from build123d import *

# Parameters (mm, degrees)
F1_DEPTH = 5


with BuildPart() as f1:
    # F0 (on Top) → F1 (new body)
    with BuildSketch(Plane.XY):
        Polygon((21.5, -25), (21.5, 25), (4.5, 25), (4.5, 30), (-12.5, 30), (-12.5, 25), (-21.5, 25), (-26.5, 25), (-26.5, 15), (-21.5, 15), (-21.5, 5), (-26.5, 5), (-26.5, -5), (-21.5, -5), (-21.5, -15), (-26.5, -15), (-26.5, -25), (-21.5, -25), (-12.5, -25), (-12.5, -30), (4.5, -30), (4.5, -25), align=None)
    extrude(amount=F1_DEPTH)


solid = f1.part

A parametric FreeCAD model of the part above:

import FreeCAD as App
import Part
import Sketcher
Q = App.Units.Quantity

doc = App.newDocument("Part")
body = doc.addObject("PartDesign::Body", "Body")

sketch1 = body.newObject("Sketcher::SketchObject", "Sketch")
sketch1.AttachmentSupport = (doc.getObject("XY_Plane"), [""])
sketch1.MapMode = "FlatFace"
sketch1.addGeometry(Part.LineSegment(App.Vector(22, -25, 0), App.Vector(22, 25, 0)), False)
sketch1.addGeometry(Part.LineSegment(App.Vector(22, 25, 0), App.Vector(4, 25, 0)), False)
sketch1.addGeometry(Part.LineSegment(App.Vector(4, 25, 0), App.Vector(4, 30, 0)), False)
sketch1.addGeometry(Part.LineSegment(App.Vector(4, 30, 0), App.Vector(-12, 30, 0)), False)
sketch1.addGeometry(Part.LineSegment(App.Vector(-12, 30, 0), App.Vector(-12, 25, 0)), False)
sketch1.addGeometry(Part.LineSegment(App.Vector(-12, 25, 0), App.Vector(-26, 25, 0)), False)
sketch1.addGeometry(Part.LineSegment(App.Vector(-26, 25, 0), App.Vector(-26, 15, 0)), False)
sketch1.addGeometry(Part.LineSegment(App.Vector(-26, 15, 0), App.Vector(-22, 15, 0)), False)
sketch1.addGeometry(Part.LineSegment(App.Vector(-22, 15, 0), App.Vector(-22, 5, 0)), False)
sketch1.addGeometry(Part.LineSegment(App.Vector(-22, 5, 0), App.Vector(-26, 5, 0)), False)
sketch1.addGeometry(Part.LineSegment(App.Vector(-26, 5, 0), App.Vector(-26, -5, 0)), False)
sketch1.addGeometry(Part.LineSegment(App.Vector(-26, -5, 0), App.Vector(-22, -5, 0)), False)
sketch1.addGeometry(Part.LineSegment(App.Vector(-22, -5, 0), App.Vector(-22, -15, 0)), False)
sketch1.addGeometry(Part.LineSegment(App.Vector(-22, -15, 0), App.Vector(-26, -15, 0)), False)
sketch1.addGeometry(Part.LineSegment(App.Vector(-26, -15, 0), App.Vector(-26, -25, 0)), False)
sketch1.addGeometry(Part.LineSegment(App.Vector(-26, -25, 0), App.Vector(-12, -25, 0)), False)
sketch1.addGeometry(Part.LineSegment(App.Vector(-12, -25, 0), App.Vector(-12, -30, 0)), False)
sketch1.addGeometry(Part.LineSegment(App.Vector(-12, -30, 0), App.Vector(4, -30, 0)), False)
sketch1.addGeometry(Part.LineSegment(App.Vector(4, -30, 0), App.Vector(4, -25, 0)), False)
sketch1.addGeometry(Part.LineSegment(App.Vector(4, -25, 0), App.Vector(22, -25, 0)), False)
sketch1.addConstraint(Sketcher.Constraint("Coincident", 0, 2, 1, 1))
sketch1.addConstraint(Sketcher.Constraint("Coincident", 1, 2, 2, 1))
sketch1.addConstraint(Sketcher.Constraint("Coincident", 2, 2, 3, 1))
sketch1.addConstraint(Sketcher.Constraint("Coincident", 3, 2, 4, 1))
sketch1.addConstraint(Sketcher.Constraint("Coincident", 4, 2, 5, 1))
sketch1.addConstraint(Sketcher.Constraint("Coincident", 5, 2, 6, 1))
sketch1.addConstraint(Sketcher.Constraint("Coincident", 6, 2, 7, 1))
sketch1.addConstraint(Sketcher.Constraint("Coincident", 7, 2, 8, 1))
sketch1.addConstraint(Sketcher.Constraint("Coincident", 8, 2, 9, 1))
sketch1.addConstraint(Sketcher.Constraint("Coincident", 9, 2, 10, 1))
sketch1.addConstraint(Sketcher.Constraint("Coincident", 10, 2, 11, 1))
sketch1.addConstraint(Sketcher.Constraint("Coincident", 11, 2, 12, 1))
sketch1.addConstraint(Sketcher.Constraint("Coincident", 12, 2, 13, 1))
sketch1.addConstraint(Sketcher.Constraint("Coincident", 13, 2, 14, 1))
sketch1.addConstraint(Sketcher.Constraint("Coincident", 14, 2, 15, 1))
sketch1.addConstraint(Sketcher.Constraint("Coincident", 15, 2, 16, 1))
sketch1.addConstraint(Sketcher.Constraint("Coincident", 16, 2, 17, 1))
sketch1.addConstraint(Sketcher.Constraint("Coincident", 17, 2, 18, 1))
sketch1.addConstraint(Sketcher.Constraint("Coincident", 18, 2, 19, 1))
sketch1.addConstraint(Sketcher.Constraint("Coincident", 19, 2, 0, 1))
sketch1.addConstraint(Sketcher.Constraint("Vertical", 0))
sketch1.addConstraint(Sketcher.Constraint("Horizontal", 1))
sketch1.addConstraint(Sketcher.Constraint("Vertical", 2))
sketch1.addConstraint(Sketcher.Constraint("Horizontal", 3))
sketch1.addConstraint(Sketcher.Constraint("Vertical", 4))
sketch1.addConstraint(Sketcher.Constraint("Horizontal", 5))
sketch1.addConstraint(Sketcher.Constraint("Vertical", 6))
sketch1.addConstraint(Sketcher.Constraint("Horizontal", 7))
sketch1.addConstraint(Sketcher.Constraint("Vertical", 8))
sketch1.addConstraint(Sketcher.Constraint("Horizontal", 9))
sketch1.addConstraint(Sketcher.Constraint("Vertical", 10))
sketch1.addConstraint(Sketcher.Constraint("Horizontal", 11))
sketch1.addConstraint(Sketcher.Constraint("Vertical", 12))
sketch1.addConstraint(Sketcher.Constraint("Horizontal", 13))
sketch1.addConstraint(Sketcher.Constraint("Vertical", 14))
sketch1.addConstraint(Sketcher.Constraint("Horizontal", 15))
sketch1.addConstraint(Sketcher.Constraint("Vertical", 16))
sketch1.addConstraint(Sketcher.Constraint("Horizontal", 17))
sketch1.addConstraint(Sketcher.Constraint("Vertical", 18))
sketch1.addConstraint(Sketcher.Constraint("Horizontal", 19))
sketch1.addConstraint(Sketcher.Constraint("Symmetric", 8, 2, 11, 2, -1))
sketch1.addConstraint(Sketcher.Constraint("Symmetric", 6, 2, 13, 2, -1))
sketch1.addConstraint(Sketcher.Constraint("Symmetric", 4, 2, 15, 2, -1))
sketch1.addConstraint(Sketcher.Constraint("Symmetric", 2, 2, 17, 2, -1))
sketch1.addConstraint(Sketcher.Constraint("Horizontal", 1, 2, 4, 2))
sketch1.addConstraint(Sketcher.Constraint("Horizontal", 15, 2, 18, 2))
sketch1.addConstraint(Sketcher.Constraint("Vertical", 6, 2, 9, 2))
sketch1.addConstraint(Sketcher.Constraint("Equal", 1, 3))
sketch1.addConstraint(Sketcher.Constraint("Equal", 13, 2))
sketch1.addConstraint(Sketcher.Constraint("Equal", 6, 8))
sketch1.addConstraint(Sketcher.Constraint("Equal", 8, 10))
sketch1.addConstraint(Sketcher.Constraint("DistanceX", 1, 2, 1, 1, Q("17 mm")))
sketch1.addConstraint(Sketcher.Constraint("DistanceX", 5, 2, 5, 1, Q("14 mm")))
sketch1.addConstraint(Sketcher.Constraint("DistanceX", 7, 1, 7, 2, Q("5 mm")))
sketch1.addConstraint(Sketcher.Constraint("DistanceY", 0, 1, 0, 2, Q("50 mm")))
sketch1.addConstraint(Sketcher.Constraint("DistanceX", -1, 1, 0, 2, Q("21.5 mm")))
pad1 = body.newObject("PartDesign::Pad", "Pad")
pad1.Profile = sketch1
pad1.Length = 5

doc.recompute()
